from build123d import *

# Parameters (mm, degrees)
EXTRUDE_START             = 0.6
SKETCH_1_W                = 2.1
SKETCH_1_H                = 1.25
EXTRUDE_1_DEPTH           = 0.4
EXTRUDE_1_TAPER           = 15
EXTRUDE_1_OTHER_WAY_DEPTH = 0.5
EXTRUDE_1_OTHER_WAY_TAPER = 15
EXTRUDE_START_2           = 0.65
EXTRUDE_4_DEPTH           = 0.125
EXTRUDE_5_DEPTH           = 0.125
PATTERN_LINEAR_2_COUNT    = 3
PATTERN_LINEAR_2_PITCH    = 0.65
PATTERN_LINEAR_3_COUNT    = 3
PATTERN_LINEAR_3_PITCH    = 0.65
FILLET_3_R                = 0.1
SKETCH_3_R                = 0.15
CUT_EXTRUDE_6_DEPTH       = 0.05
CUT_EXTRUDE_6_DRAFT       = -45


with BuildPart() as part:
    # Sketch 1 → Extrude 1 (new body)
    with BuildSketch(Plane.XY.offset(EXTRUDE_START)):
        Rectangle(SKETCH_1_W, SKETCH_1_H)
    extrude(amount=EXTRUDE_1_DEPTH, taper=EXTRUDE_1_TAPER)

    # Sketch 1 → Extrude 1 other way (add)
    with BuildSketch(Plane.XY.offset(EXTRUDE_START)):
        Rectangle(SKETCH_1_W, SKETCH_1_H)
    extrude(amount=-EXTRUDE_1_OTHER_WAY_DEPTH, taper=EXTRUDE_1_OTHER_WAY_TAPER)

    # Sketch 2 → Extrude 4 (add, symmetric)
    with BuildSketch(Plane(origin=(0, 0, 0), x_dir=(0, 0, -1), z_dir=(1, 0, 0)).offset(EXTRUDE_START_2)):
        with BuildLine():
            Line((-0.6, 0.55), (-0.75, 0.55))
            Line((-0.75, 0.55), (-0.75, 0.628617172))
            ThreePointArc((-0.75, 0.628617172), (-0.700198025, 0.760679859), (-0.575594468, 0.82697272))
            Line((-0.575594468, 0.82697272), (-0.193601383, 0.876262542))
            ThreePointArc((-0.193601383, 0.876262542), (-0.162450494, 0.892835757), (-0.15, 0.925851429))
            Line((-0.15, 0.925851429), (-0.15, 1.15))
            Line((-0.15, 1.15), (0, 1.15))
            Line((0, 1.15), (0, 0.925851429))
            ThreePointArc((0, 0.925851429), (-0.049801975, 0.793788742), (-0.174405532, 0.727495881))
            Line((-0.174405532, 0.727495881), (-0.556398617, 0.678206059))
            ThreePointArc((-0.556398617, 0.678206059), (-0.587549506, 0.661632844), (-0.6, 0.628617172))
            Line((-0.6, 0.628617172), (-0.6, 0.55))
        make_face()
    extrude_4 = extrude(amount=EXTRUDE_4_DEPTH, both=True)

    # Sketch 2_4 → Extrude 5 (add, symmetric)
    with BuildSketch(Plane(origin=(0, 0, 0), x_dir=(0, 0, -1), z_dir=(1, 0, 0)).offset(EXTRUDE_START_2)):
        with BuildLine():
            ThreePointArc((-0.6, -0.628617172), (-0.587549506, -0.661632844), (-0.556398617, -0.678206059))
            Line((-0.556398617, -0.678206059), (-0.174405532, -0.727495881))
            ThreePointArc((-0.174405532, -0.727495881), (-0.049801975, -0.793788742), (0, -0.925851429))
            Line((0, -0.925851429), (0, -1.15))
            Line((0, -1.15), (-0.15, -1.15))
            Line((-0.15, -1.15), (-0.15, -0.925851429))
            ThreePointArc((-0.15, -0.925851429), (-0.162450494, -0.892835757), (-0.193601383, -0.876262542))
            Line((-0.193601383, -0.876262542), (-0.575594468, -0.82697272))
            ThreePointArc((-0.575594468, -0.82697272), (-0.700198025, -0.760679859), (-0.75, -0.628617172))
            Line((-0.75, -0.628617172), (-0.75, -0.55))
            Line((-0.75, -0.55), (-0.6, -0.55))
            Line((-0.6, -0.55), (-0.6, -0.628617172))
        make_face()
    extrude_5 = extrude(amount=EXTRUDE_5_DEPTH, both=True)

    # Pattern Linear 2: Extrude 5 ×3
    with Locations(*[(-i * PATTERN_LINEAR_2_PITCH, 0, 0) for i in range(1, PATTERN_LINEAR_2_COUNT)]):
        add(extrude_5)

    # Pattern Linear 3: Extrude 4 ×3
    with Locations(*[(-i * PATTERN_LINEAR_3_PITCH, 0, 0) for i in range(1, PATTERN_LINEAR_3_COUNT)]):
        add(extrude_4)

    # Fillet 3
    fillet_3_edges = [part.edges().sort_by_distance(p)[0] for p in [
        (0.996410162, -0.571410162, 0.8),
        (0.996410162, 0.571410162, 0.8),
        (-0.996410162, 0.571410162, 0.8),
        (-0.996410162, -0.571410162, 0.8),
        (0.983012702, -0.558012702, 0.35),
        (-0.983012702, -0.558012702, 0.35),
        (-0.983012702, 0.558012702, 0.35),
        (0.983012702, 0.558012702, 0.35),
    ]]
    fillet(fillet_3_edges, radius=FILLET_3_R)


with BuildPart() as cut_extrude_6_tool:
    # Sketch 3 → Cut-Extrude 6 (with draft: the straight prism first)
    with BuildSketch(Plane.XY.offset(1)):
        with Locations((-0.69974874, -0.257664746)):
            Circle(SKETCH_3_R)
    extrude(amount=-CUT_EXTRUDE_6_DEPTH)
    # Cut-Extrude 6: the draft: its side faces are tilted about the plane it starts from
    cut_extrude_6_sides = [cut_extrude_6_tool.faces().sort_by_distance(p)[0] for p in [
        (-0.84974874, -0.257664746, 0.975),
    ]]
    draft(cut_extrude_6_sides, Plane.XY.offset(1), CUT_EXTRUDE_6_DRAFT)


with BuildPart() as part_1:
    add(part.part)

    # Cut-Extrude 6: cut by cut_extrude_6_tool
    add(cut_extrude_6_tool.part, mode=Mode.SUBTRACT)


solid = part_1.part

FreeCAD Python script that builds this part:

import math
import FreeCAD as App
import Part
import Sketcher
from FreeCAD import Vector


def edges_at(feature, points):
    """Names of the edges that pass closest to the given points."""
    edges = feature.Shape.Edges
    near = lambda p: min(range(len(edges)), key=lambda i: edges[i].distToShape(Part.Vertex(*p))[0])
    return sorted({f"Edge{near(p) + 1}" for p in points})


def faces_at(feature, points):
    """Names of the faces that lie closest to the given points."""
    faces = feature.Shape.Faces
    near = lambda p: min(range(len(faces)), key=lambda i: faces[i].distToShape(Part.Vertex(*p))[0])
    return sorted({f"Face{near(p) + 1}" for p in points})

doc = App.newDocument("Part")
body = doc.addObject("PartDesign::Body", "Body")

# Sketch on XY plane
sketch1 = doc.addObject("Sketcher::SketchObject", "Sketch")
body.addObject(sketch1)
sketch1.AttachmentSupport = (doc.XY_Plane, [""])
sketch1.MapMode = "FlatFace"
sketch1.AttachmentOffset = App.Placement(Vector(0, 0, 0.6), App.Rotation())
sketch1.addGeometry([
    Part.LineSegment(Vector(-1.1, 0.6, 0), Vector(-1.1, -0.6, 0)),
    Part.LineSegment(Vector(-1.1, -0.6, 0), Vector(1.1, -0.6, 0)),
    Part.LineSegment(Vector(1.1, -0.6, 0), Vector(1.1, 0.6, 0)),
    Part.LineSegment(Vector(1.1, 0.6, 0), Vector(-1.1, 0.6, 0)),
], False)
sketch1.addConstraint([
    Sketcher.Constraint("Coincident", 0, 2, 1, 1),
    Sketcher.Constraint("Coincident", 1, 2, 2, 1),
    Sketcher.Constraint("Coincident", 2, 2, 3, 1),
    Sketcher.Constraint("Coincident", 3, 2, 0, 1),
    Sketcher.Constraint("Vertical", 0),
    Sketcher.Constraint("Horizontal", 1),
    Sketcher.Constraint("Vertical", 2),
    Sketcher.Constraint("Horizontal", 3),
    Sketcher.Constraint("Symmetric", 0, 2, 2, 2, -1, 1),
    Sketcher.Constraint("DistanceX", 1, 1, 1, 2, 2.1),
    Sketcher.Constraint("DistanceY", 0, 2, 0, 1, 1.25),
])
pad1 = doc.addObject("PartDesign::Pad", "Pad")
body.addObject(pad1)
pad1.Profile = sketch1
pad1.Length = 0.4
pad1.TaperAngle = -15

# Sketch on XY plane
sketch2 = doc.addObject("Sketcher::SketchObject", "Sketch001")
body.addObject(sketch2)
sketch2.AttachmentSupport = (doc.XY_Plane, [""])
sketch2.MapMode = "FlatFace"
sketch2.AttachmentOffset = App.Placement(Vector(0, 0, 0.6), App.Rotation())
sketch2.addGeometry([
    Part.LineSegment(Vector(-1.1, 0.6, 0), Vector(-1.1, -0.6, 0)),
    Part.LineSegment(Vector(-1.1, -0.6, 0), Vector(1.1, -0.6, 0)),
    Part.LineSegment(Vector(1.1, -0.6, 0), Vector(1.1, 0.6, 0)),
    Part.LineSegment(Vector(1.1, 0.6, 0), Vector(-1.1, 0.6, 0)),
], False)
sketch2.addConstraint([
    Sketcher.Constraint("Coincident", 0, 2, 1, 1),
    Sketcher.Constraint("Coincident", 1, 2, 2, 1),
    Sketcher.Constraint("Coincident", 2, 2, 3, 1),
    Sketcher.Constraint("Coincident", 3, 2, 0, 1),
    Sketcher.Constraint("Vertical", 0),
    Sketcher.Constraint("Horizontal", 1),
    Sketcher.Constraint("Vertical", 2),
    Sketcher.Constraint("Horizontal", 3),
    Sketcher.Constraint("Symmetric", 0, 2, 2, 2, -1, 1),
    Sketcher.Constraint("DistanceX", 1, 1, 1, 2, 2.1),
    Sketcher.Constraint("DistanceY", 0, 2, 0, 1, 1.25),
])
pad2 = doc.addObject("PartDesign::Pad", "Pad001")
body.addObject(pad2)
pad2.Profile = sketch2
pad2.Length = 0.5
pad2.Reversed = True
pad2.TaperAngle = -15

# Sketch on YZ plane
sketch3 = doc.addObject("Sketcher::SketchObject", "Sketch002")
body.addObject(sketch3)
sketch3.AttachmentSupport = (doc.YZ_Plane, [""])
sketch3.MapMode = "FlatFace"
sketch3.AttachmentOffset = App.Placement(Vector(0, 0, 0.65), App.Rotation())
sketch3.addGeometry([
    Part.LineSegment(Vector(0.55, 0.75, 0), Vector(0.55, 0.6, 0)),  # 0
    Part.LineSegment(Vector(0.55, 0.6, 0), Vector(0.63, 0.6, 0)),  # 1
    Part.ArcOfCircle(Part.Circle(Vector(0.63, 0.55, 0), Vector(0, 0, 1), 0.05), math.radians(7), math.radians(90)),  # 2
    Part.LineSegment(Vector(0.68, 0.56, 0), Vector(0.73, 0.17, 0)),  # 3
    Part.ArcOfCircle(Part.Circle(Vector(0.93, 0.2, 0), Vector(0, 0, 1), 0.2), math.radians(-173), math.radians(-90)),  # 4
    Part.LineSegment(Vector(0.93, 0, 0), Vector(1.15, 0, 0)),  # 5
    Part.LineSegment(Vector(1.15, 0, 0), Vector(1.15, 0.15, 0)),  # 6
    Part.LineSegment(Vector(1.15, 0.15, 0), Vector(0.93, 0.15, 0)),  # 7
    Part.ArcOfCircle(Part.Circle(Vector(0.93, 0.2, 0), Vector(0, 0, 1), 0.05), math.radians(-173), math.radians(-90)),  # 8
    Part.LineSegment(Vector(0.88, 0.19, 0), Vector(0.83, 0.58, 0)),  # 9
    Part.ArcOfCircle(Part.Circle(Vector(0.63, 0.55, 0), Vector(0, 0, 1), 0.2), math.radians(7), math.radians(90)),  # 10
    Part.LineSegment(Vector(0.63, 0.75, 0), Vector(0.55, 0.75, 0)),  # 11
], False)
sketch3.addConstraint([
    Sketcher.Constraint("Coincident", 0, 2, 1, 1),
    Sketcher.Constraint("Tangent", 1, 2, 2, 2),
    Sketcher.Constraint("Tangent", 2, 1, 3, 1),
    Sketcher.Constraint("Tangent", 3, 2, 4, 1),
    Sketcher.Constraint("Tangent", 4, 2, 5, 1),
    Sketcher.Constraint("Coincident", 5, 2, 6, 1),
    Sketcher.Constraint("Coincident", 6, 2, 7, 1),
    Sketcher.Constraint("Tangent", 7, 2, 8, 2),
    Sketcher.Constraint("Tangent", 8, 1, 9, 1),
    Sketcher.Constraint("Tangent", 9, 2, 10, 1),
    Sketcher.Constraint("Tangent", 10, 2, 11, 1),
    Sketcher.Constraint("Coincident", 11, 2, 0, 1),
    Sketcher.Constraint("Vertical", 0),
    Sketcher.Constraint("Horizontal", 1),
    Sketcher.Constraint("Horizontal", 5),
    Sketcher.Constraint("Vertical", 6),
    Sketcher.Constraint("Horizontal", 7),
    Sketcher.Constraint("Horizontal", 11),
    Sketcher.Constraint("Coincident", 8, 3, 4, 3),
    Sketcher.Constraint("Coincident", 10, 3, 2, 3),
    Sketcher.Constraint("Equal", 2, 8),
    Sketcher.Constraint("Equal", 4, 10),
    Sketcher.Constraint("PointOnObject", 4, 2, -1),
    Sketcher.Constraint("Radius", 4, 0.2),
    Sketcher.Constraint("Radius", 2, 0.05),
    Sketcher.Constraint("DistanceY", -1, 1, 0, 2, 0.6),
    Sketcher.Constraint("DistanceX", -1, 1, 0, 2, 0.55),
    Sketcher.Constraint("DistanceX", -1, 1, 5, 2, 1.15),
    Sketcher.Constraint("DistanceX", 5, 1, 5, 2, 0.224149),
    Sketcher.Constraint("DistanceY", -1, 1, 2, 1, 0.556399),
])
pad3 = doc.addObject("PartDesign::Pad", "Pad002")
body.addObject(pad3)
pad3.Profile = sketch3
pad3.Length = 0.25
pad3.Midplane = True

# Sketch on YZ plane
sketch4 = doc.addObject("Sketcher::SketchObject", "Sketch003")
body.addObject(sketch4)
sketch4.AttachmentSupport = (doc.YZ_Plane, [""])
sketch4.MapMode = "FlatFace"
sketch4.AttachmentOffset = App.Placement(Vector(0, 0, 0.65), App.Rotation())
sketch4.addGeometry([
    Part.ArcOfCircle(Part.Circle(Vector(-0.63, 0.55, 0), Vector(0, 0, 1), 0.05), math.radians(90), math.radians(173)),  # 0
    Part.LineSegment(Vector(-0.63, 0.6, 0), Vector(-0.55, 0.6, 0)),  # 1
    Part.LineSegment(Vector(-0.55, 0.6, 0), Vector(-0.55, 0.75, 0)),  # 2
    Part.LineSegment(Vector(-0.55, 0.75, 0), Vector(-0.63, 0.75, 0)),  # 3
    Part.ArcOfCircle(Part.Circle(Vector(-0.63, 0.55, 0), Vector(0, 0, 1), 0.2), math.radians(90), math.radians(173)),  # 4
    Part.LineSegment(Vector(-0.83, 0.58, 0), Vector(-0.88, 0.19, 0)),  # 5
    Part.ArcOfCircle(Part.Circle(Vector(-0.93, 0.2, 0), Vector(0, 0, 1), 0.05), math.radians(-90), math.radians(-7)),  # 6
    Part.LineSegment(Vector(-0.93, 0.15, 0), Vector(-1.15, 0.15, 0)),  # 7
    Part.LineSegment(Vector(-1.15, 0.15, 0), Vector(-1.15, 0, 0)),  # 8
    Part.LineSegment(Vector(-1.15, 0, 0), Vector(-0.93, 0, 0)),  # 9
    Part.ArcOfCircle(Part.Circle(Vector(-0.93, 0.2, 0), Vector(0, 0, 1), 0.2), math.radians(-90), math.radians(-7)),  # 10
    Part.LineSegment(Vector(-0.73, 0.17, 0), Vector(-0.68, 0.56, 0)),  # 11
], False)
sketch4.addConstraint([
    Sketcher.Constraint("Tangent", 0, 1, 1, 1),
    Sketcher.Constraint("Coincident", 1, 2, 2, 1),
    Sketcher.Constraint("Coincident", 2, 2, 3, 1),
    Sketcher.Constraint("Tangent", 3, 2, 4, 1),
    Sketcher.Constraint("Tangent", 4, 2, 5, 1),
    Sketcher.Constraint("Tangent", 5, 2, 6, 2),
    Sketcher.Constraint("Tangent", 6, 1, 7, 1),
    Sketcher.Constraint("Coincident", 7, 2, 8, 1),
    Sketcher.Constraint("Coincident", 8, 2, 9, 1),
    Sketcher.Constraint("Tangent", 9, 2, 10, 1),
    Sketcher.Constraint("Tangent", 10, 2, 11, 1),
    Sketcher.Constraint("Tangent", 11, 2, 0, 2),
    Sketcher.Constraint("Horizontal", 1),
    Sketcher.Constraint("Vertical", 2),
    Sketcher.Constraint("Horizontal", 3),
    Sketcher.Constraint("Horizontal", 7),
    Sketcher.Constraint("Vertical", 8),
    Sketcher.Constraint("Horizontal", 9),
    Sketcher.Constraint("Coincident", 4, 3, 0, 3),
    Sketcher.Constraint("Coincident", 10, 3, 6, 3),
    Sketcher.Constraint("Equal", 0, 6),
    Sketcher.Constraint("Equal", 4, 10),
    Sketcher.Constraint("PointOnObject", 8, 2, -1),
    Sketcher.Constraint("Radius", 4, 0.2),
    Sketcher.Constraint("Radius", 0, 0.05),
    Sketcher.Constraint("DistanceY", -1, 1, 0, 1, 0.6),
    Sketcher.Constraint("DistanceX", 1, 2, -1, 1, 0.55),
    Sketcher.Constraint("DistanceX", 7, 2, -1, 1, 1.15),
    Sketcher.Constraint("DistanceX", 7, 2, 7, 1, 0.224149),
    Sketcher.Constraint("DistanceY", -1, 1, 5, 2, 0.193601),
])
pad4 = doc.addObject("PartDesign::Pad", "Pad003")
body.addObject(pad4)
pad4.Profile = sketch4
pad4.Length = 0.25
pad4.Midplane = True
doc.recompute()

linearpattern = doc.addObject("PartDesign::LinearPattern", "LinearPattern")
body.addObject(linearpattern)
linearpattern.Originals = [pad4]
linearpattern.Direction = (doc.X_Axis, [""])
linearpattern.Mode = "offset"
linearpattern.Offset = 0.65
linearpattern.Occurrences = 3
linearpattern.Reversed = True
body.Tip = linearpattern
doc.recompute()

linearpattern2 = doc.addObject("PartDesign::LinearPattern", "LinearPattern001")
body.addObject(linearpattern2)
linearpattern2.Originals = [pad3]
linearpattern2.Direction = (doc.X_Axis, [""])
linearpattern2.Mode = "offset"
linearpattern2.Offset = 0.65
linearpattern2.Occurrences = 3
linearpattern2.Reversed = True
body.Tip = linearpattern2
doc.recompute()

fillet = doc.addObject("PartDesign::Fillet", "Fillet")
body.addObject(fillet)
fillet.Base = (linearpattern2, edges_at(linearpattern2, [
    (0.996, -0.571, 0.8),
    (0.996, 0.571, 0.8),
    (-0.996, 0.571, 0.8),
    (-0.996, -0.571, 0.8),
    (0.983, -0.558, 0.35),
    (-0.983, -0.558, 0.35),
    (-0.983, 0.558, 0.35),
    (0.983, 0.558, 0.35),
]))
fillet.Radius = 0.1
body2 = doc.addObject("PartDesign::Body", "Body001")

# Sketch on XY plane
sketch5 = doc.addObject("Sketcher::SketchObject", "Sketch004")
body2.addObject(sketch5)
sketch5.AttachmentSupport = (doc.getObject("XY_Plane001"), [""])
sketch5.MapMode = "FlatFace"
sketch5.AttachmentOffset = App.Placement(Vector(0, 0, 1), App.Rotation())
sketch5.addGeometry(Part.Circle(Vector(-0.7, -0.26, 0), Vector(0, 0, 1), 0.15), False)
sketch5.addConstraint([
    Sketcher.Constraint("Diameter", 0, 0.3),
    Sketcher.Constraint("DistanceX", 0, 3, -1, 1, 0.699749),
    Sketcher.Constraint("DistanceY", 0, 3, -1, 1, 0.257665),
])
pad5 = doc.addObject("PartDesign::Pad", "Pad004")
body2.addObject(pad5)
pad5.Profile = sketch5
pad5.Length = 0.05
pad5.Reversed = True
doc.recompute()

datumplane = doc.addObject("PartDesign::Plane", "DatumPlane")
body2.addObject(datumplane)
datumplane.AttachmentSupport = (doc.getObject("XY_Plane001"), [""])
datumplane.MapMode = "FlatFace"
datumplane.AttachmentOffset = App.Placement(Vector(0, 0, 1), App.Rotation())
draft = doc.addObject("PartDesign::Draft", "Draft")
body2.addObject(draft)
draft.Base = (pad5, faces_at(pad5, [(-0.85, -0.258, 0.975)]))
draft.NeutralPlane = (datumplane, [""])
draft.Angle = 45
draft.Reversed = True
doc.recompute()

boolean = doc.addObject("PartDesign::Boolean", "Boolean")
body.addObject(boolean)
boolean.Type = "Cut"
boolean.addObjects([body2])

doc.recompute()
